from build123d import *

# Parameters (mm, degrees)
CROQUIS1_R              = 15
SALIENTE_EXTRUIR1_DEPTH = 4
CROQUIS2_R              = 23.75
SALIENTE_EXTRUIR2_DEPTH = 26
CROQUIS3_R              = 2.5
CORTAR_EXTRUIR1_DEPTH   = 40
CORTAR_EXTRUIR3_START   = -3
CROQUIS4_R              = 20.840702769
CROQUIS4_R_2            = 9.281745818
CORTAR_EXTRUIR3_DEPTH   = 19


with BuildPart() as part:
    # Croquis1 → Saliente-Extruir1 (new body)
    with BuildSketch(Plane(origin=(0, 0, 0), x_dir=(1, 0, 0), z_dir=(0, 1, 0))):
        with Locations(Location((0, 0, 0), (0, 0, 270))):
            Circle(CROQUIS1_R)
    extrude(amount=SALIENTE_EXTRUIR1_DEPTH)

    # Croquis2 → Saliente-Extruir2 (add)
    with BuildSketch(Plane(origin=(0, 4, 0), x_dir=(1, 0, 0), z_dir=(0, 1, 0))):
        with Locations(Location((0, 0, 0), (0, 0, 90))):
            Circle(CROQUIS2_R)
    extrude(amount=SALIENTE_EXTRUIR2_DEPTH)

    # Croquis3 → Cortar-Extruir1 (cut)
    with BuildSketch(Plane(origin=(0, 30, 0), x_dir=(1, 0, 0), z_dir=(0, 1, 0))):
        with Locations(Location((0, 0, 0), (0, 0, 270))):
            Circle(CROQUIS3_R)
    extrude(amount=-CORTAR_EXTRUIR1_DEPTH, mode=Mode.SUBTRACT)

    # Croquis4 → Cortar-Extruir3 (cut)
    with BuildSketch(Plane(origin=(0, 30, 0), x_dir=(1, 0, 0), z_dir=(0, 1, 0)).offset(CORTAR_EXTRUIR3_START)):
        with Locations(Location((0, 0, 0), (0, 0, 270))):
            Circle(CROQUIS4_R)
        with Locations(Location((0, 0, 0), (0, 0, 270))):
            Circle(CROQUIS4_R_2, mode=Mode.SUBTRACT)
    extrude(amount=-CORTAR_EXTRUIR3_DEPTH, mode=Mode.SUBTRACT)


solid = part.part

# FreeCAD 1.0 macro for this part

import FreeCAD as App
import Part
import Sketcher

V = App.Vector

doc = App.newDocument("Part")
body = doc.addObject("PartDesign::Body", "Body")

sketch1 = body.newObject("Sketcher::SketchObject", "Sketch")
sketch1.AttachmentSupport = (doc.getObject("XZ_Plane"), [""])
sketch1.MapMode = "FlatFace"
sketch1.addGeometry(Part.Circle(V(0, 0, 0), V(0, 0, 1), 15), False)
sketch1.addConstraint([
    Sketcher.Constraint("Coincident", 0, 3, -1, 1),
    Sketcher.Constraint("Diameter", 0, 30.0),
])
pad1 = body.newObject("PartDesign::Pad", "Pad")
pad1.Profile = sketch1
pad1.Length = 4
pad1.Reversed = True

sketch2 = body.newObject("Sketcher::SketchObject", "Sketch001")
sketch2.AttachmentSupport = (doc.getObject("XZ_Plane"), [""])
sketch2.MapMode = "FlatFace"
sketch2.AttachmentOffset = App.Placement(V(0, 0, -4), App.Rotation())
sketch2.addGeometry(Part.Circle(V(0, 0, 0), V(0, 0, 1), 24), False)
sketch2.addConstraint([
    Sketcher.Constraint("Coincident", 0, 3, -1, 1),
    Sketcher.Constraint("Diameter", 0, 47.5),
])
pad2 = body.newObject("PartDesign::Pad", "Pad001")
pad2.Profile = sketch2
pad2.Length = 26
pad2.Reversed = True

sketch3 = body.newObject("Sketcher::SketchObject", "Sketch002")
sketch3.AttachmentSupport = (doc.getObject("XZ_Plane"), [""])
sketch3.MapMode = "FlatFace"
sketch3.AttachmentOffset = App.Placement(V(0, 0, -30), App.Rotation())
sketch3.addGeometry(Part.Circle(V(0, 0, 0), V(0, 0, 1), 2.5), False)
sketch3.addConstraint([
    Sketcher.Constraint("Coincident", 0, 3, -1, 1),
    Sketcher.Constraint("Diameter", 0, 5.0),
])
pocket1 = body.newObject("PartDesign::Pocket", "Pocket")
pocket1.Profile = sketch3
pocket1.Length = 40
pocket1.Reversed = True

sketch4 = body.newObject("Sketcher::SketchObject", "Sketch003")
sketch4.AttachmentSupport = (doc.getObject("XZ_Plane"), [""])
sketch4.MapMode = "FlatFace"
sketch4.AttachmentOffset = App.Placement(V(0, 0, -27), App.Rotation())
sketch4.addGeometry([
    Part.Circle(V(0, 0, 0), V(0, 0, 1), 21),
    Part.Circle(V(0, 0, 0), V(0, 0, 1), 9),
], False)
sketch4.addConstraint([
    Sketcher.Constraint("Coincident", 0, 3, -1, 1),
    Sketcher.Constraint("Coincident", 1, 3, -1, 1),
    Sketcher.Constraint("Diameter", 1, 18.563492),
    Sketcher.Constraint("Diameter", 0, 41.681406),
])
pocket2 = body.newObject("PartDesign::Pocket", "Pocket001")
pocket2.Profile = sketch4
pocket2.Length = 19
pocket2.Reversed = True

doc.recompute()
